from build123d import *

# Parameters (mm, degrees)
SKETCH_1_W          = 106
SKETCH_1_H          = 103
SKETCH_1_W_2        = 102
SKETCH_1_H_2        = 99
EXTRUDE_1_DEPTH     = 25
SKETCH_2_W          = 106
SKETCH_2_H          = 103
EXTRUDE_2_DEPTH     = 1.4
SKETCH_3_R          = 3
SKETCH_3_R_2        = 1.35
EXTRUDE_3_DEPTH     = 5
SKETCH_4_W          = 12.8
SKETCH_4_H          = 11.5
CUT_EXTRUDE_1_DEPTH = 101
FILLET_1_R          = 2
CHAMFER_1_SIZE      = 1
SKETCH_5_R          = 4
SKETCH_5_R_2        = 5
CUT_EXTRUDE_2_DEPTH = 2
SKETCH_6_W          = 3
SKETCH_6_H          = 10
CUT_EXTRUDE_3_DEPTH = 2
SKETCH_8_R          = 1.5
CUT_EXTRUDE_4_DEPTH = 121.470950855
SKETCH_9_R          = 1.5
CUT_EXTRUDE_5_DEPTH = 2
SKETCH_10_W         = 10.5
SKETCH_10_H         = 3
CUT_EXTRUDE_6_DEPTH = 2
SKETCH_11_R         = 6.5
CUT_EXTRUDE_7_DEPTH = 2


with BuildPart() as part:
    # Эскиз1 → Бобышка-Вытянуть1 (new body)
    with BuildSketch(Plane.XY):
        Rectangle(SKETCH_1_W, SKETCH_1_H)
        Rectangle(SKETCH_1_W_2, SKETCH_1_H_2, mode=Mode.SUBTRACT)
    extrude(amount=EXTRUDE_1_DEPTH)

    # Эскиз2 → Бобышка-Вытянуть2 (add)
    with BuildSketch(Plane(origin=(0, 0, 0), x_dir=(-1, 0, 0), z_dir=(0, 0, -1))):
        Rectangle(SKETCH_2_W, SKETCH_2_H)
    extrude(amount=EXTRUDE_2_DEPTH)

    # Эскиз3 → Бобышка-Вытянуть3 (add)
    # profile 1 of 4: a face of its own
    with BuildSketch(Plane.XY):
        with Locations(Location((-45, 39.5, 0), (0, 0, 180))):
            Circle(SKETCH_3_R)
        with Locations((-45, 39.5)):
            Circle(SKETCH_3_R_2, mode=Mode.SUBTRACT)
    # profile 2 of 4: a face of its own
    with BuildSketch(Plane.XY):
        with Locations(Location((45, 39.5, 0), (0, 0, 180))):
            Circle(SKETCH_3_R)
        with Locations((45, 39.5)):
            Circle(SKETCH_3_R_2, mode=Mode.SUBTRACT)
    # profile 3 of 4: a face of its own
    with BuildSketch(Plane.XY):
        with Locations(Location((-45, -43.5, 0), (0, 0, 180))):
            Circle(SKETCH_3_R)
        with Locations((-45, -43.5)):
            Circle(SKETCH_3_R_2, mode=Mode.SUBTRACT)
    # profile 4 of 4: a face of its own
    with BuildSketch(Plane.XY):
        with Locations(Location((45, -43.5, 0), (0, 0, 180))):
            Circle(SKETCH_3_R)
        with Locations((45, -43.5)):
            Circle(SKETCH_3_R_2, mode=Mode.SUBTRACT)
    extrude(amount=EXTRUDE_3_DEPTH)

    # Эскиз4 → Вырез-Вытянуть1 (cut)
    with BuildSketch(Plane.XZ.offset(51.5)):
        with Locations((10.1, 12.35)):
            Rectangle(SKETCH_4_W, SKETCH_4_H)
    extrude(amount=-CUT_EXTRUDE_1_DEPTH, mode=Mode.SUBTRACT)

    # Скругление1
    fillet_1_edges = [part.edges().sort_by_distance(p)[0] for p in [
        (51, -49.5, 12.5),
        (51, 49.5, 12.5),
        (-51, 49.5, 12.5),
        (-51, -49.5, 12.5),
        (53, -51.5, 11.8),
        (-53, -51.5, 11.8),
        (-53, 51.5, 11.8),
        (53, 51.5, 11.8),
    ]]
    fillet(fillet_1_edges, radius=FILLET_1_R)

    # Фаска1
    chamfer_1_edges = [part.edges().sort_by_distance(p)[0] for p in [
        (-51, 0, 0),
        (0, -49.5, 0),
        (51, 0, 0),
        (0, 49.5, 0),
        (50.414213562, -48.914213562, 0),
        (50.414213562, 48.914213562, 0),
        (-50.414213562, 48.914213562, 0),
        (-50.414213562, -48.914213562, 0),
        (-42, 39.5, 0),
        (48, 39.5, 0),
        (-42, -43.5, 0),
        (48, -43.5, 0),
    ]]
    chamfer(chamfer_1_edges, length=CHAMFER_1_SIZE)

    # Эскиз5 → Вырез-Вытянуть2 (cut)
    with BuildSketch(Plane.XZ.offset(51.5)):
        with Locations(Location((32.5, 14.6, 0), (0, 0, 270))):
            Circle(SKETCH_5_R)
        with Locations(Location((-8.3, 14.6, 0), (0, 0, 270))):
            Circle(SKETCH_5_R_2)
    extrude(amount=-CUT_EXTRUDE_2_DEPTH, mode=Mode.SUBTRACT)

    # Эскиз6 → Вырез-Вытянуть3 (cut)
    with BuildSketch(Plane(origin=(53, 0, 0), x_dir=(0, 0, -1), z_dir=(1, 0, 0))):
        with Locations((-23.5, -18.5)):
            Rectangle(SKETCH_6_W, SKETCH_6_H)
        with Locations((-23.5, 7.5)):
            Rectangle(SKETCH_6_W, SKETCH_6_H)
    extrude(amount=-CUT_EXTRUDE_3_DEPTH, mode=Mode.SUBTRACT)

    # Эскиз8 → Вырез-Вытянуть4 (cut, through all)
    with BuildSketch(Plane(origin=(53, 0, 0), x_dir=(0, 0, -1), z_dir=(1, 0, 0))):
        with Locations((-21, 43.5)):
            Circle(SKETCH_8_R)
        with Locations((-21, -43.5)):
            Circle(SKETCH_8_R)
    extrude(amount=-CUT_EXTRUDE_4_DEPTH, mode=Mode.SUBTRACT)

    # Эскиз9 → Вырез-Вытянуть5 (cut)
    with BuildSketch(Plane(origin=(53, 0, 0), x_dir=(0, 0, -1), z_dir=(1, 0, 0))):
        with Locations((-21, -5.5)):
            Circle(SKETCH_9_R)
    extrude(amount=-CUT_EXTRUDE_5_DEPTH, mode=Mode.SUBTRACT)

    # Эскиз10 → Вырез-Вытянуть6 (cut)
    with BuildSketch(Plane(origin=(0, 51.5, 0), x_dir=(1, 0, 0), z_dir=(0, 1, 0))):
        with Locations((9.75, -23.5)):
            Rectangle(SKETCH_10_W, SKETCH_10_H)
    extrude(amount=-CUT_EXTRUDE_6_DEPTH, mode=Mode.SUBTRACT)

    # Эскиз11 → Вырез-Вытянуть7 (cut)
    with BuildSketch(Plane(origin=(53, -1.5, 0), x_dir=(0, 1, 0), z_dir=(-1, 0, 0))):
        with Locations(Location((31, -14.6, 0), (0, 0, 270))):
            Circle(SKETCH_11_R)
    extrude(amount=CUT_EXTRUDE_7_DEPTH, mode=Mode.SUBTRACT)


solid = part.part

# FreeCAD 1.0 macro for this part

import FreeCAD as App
import Part
import Sketcher
Q = App.Units.Quantity


def edges_at(feature, points):
    """Names of the edges that pass closest to the given points."""
    edges = feature.Shape.Edges
    near = lambda p: min(range(len(edges)), key=lambda i: edges[i].distToShape(Part.Vertex(*p))[0])
    return sorted({f"Edge{near(p) + 1}" for p in points})


def add_polygon(sketch, points):
    """Adds a closed chain of lines whose ends are joined by coincident constraints."""
    first, n = sketch.GeometryCount, len(points)
    for a, b in zip(points, points[1:] + points[:1]):
        sketch.addGeometry(Part.LineSegment(App.Vector(*a, 0), App.Vector(*b, 0)), False)
    for i in range(n):
        sketch.addConstraint(Sketcher.Constraint("Coincident", first + i, 2, first + (i + 1) % n, 1))

doc = App.newDocument("Part")
body = doc.addObject("PartDesign::Body", "Body")

# Sketch on XY plane
sketch1 = body.newObject("Sketcher::SketchObject", "Sketch")
sketch1.AttachmentSupport = (doc.getObject("XY_Plane"), [""])
sketch1.MapMode = "FlatFace"
add_polygon(sketch1, [(-53, 52), (-53, -52), (53, -52), (53, 52)])  # lines 0-3
add_polygon(sketch1, [(51, -50), (-51, -50), (-51, 50), (51, 50)])  # lines 4-7
sketch1.addConstraint([
    Sketcher.Constraint("Vertical", 0),
    Sketcher.Constraint("Horizontal", 1),
    Sketcher.Constraint("Vertical", 2),
    Sketcher.Constraint("Horizontal", 3),
    Sketcher.Constraint("Horizontal", 4),
    Sketcher.Constraint("Vertical", 5),
    Sketcher.Constraint("Horizontal", 6),
    Sketcher.Constraint("Vertical", 7),
    Sketcher.Constraint("Symmetric", 0, 2, 2, 2, -1, 1),
    Sketcher.Constraint("Symmetric", 4, 2, 6, 2, -1, 1),
    Sketcher.Constraint("DistanceX", 1, 1, 1, 2, Q("106 mm")),
    Sketcher.Constraint("DistanceX", 4, 2, 4, 1, Q("102 mm")),
    Sketcher.Constraint("DistanceY", 0, 2, 0, 1, Q("103 mm")),
    Sketcher.Constraint("DistanceY", 5, 1, 5, 2, Q("99 mm")),
])
pad1 = body.newObject("PartDesign::Pad", "Pad")
pad1.Profile = sketch1
pad1.Length = 25

# Sketch on XY plane
sketch2 = body.newObject("Sketcher::SketchObject", "Sketch001")
sketch2.AttachmentSupport = (doc.getObject("XY_Plane"), [""])
sketch2.MapMode = "FlatFace"
add_polygon(sketch2, [(53, 52), (53, -52), (-53, -52), (-53, 52)])  # lines 0-3
sketch2.addConstraint([
    Sketcher.Constraint("Vertical", 0),
    Sketcher.Constraint("Horizontal", 1),
    Sketcher.Constraint("Vertical", 2),
    Sketcher.Constraint("Horizontal", 3),
    Sketcher.Constraint("Symmetric", 0, 2, 2, 2, -1, 1),
    Sketcher.Constraint("DistanceX", 1, 2, 1, 1, Q("106 mm")),
    Sketcher.Constraint("DistanceY", 0, 2, 0, 1, Q("103 mm")),
])
pad2 = body.newObject("PartDesign::Pad", "Pad001")
pad2.Profile = sketch2
pad2.Length = 1.4
pad2.Reversed = True

# Sketch on XY plane
sketch3 = body.newObject("Sketcher::SketchObject", "Sketch002")
sketch3.AttachmentSupport = (doc.getObject("XY_Plane"), [""])
sketch3.MapMode = "FlatFace"
sketch3.addGeometry([
    Part.Circle(App.Vector(-45, 39.5, 0), App.Vector(0, 0, 1), 3),  # 0
    Part.Circle(App.Vector(-45, 39.5, 0), App.Vector(0, 0, 1), 1.4),  # 1
    Part.Circle(App.Vector(45, 39.5, 0), App.Vector(0, 0, 1), 3),  # 2
    Part.Circle(App.Vector(45, 39.5, 0), App.Vector(0, 0, 1), 1.4),  # 3
    Part.Circle(App.Vector(-45, -43.5, 0), App.Vector(0, 0, 1), 3),  # 4
    Part.Circle(App.Vector(-45, -43.5, 0), App.Vector(0, 0, 1), 1.4),  # 5
    Part.Circle(App.Vector(45, -43.5, 0), App.Vector(0, 0, 1), 3),  # 6
    Part.Circle(App.Vector(45, -43.5, 0), App.Vector(0, 0, 1), 1.4),  # 7
], False)
sketch3.addConstraint([
    Sketcher.Constraint("Coincident", 1, 3, 0, 3),
    Sketcher.Constraint("Coincident", 3, 3, 2, 3),
    Sketcher.Constraint("Coincident", 5, 3, 4, 3),
    Sketcher.Constraint("Coincident", 7, 3, 6, 3),
    Sketcher.Constraint("Equal", 0, 2),
    Sketcher.Constraint("Equal", 1, 3),
    Sketcher.Constraint("Equal", 2, 4),
    Sketcher.Constraint("Equal", 3, 5),
    Sketcher.Constraint("Equal", 4, 6),
    Sketcher.Constraint("Equal", 5, 7),
    Sketcher.Constraint("Symmetric", 0, 3, 2, 3, -2),
    Sketcher.Constraint("Symmetric", 4, 3, 6, 3, -2),
    Sketcher.Constraint("Vertical", 1, 3, 4, 3),
    Sketcher.Constraint("Diameter", 0, Q("6 mm")),
    Sketcher.Constraint("Diameter", 1, Q("2.7 mm")),
    Sketcher.Constraint("DistanceX", 0, 3, -1, 1, Q("45 mm")),
    Sketcher.Constraint("DistanceY", 4, 3, 0, 3, Q("83 mm")),
    Sketcher.Constraint("DistanceY", -1, 1, 0, 3, Q("39.5 mm")),
])
pad3 = body.newObject("PartDesign::Pad", "Pad002")
pad3.Profile = sketch3
pad3.Length = 5

# Sketch on XZ plane
sketch4 = body.newObject("Sketcher::SketchObject", "Sketch003")
sketch4.AttachmentSupport = (doc.getObject("XZ_Plane"), [""])
sketch4.MapMode = "FlatFace"
sketch4.AttachmentOffset = App.Placement(App.Vector(0, 0, 51.5), App.Rotation())
add_polygon(sketch4, [(4, 18), (4, 7), (16, 7), (16, 18)])  # lines 0-3
sketch4.addConstraint([
    Sketcher.Constraint("Vertical", 0),
    Sketcher.Constraint("Horizontal", 1),
    Sketcher.Constraint("Vertical", 2),
    Sketcher.Constraint("Horizontal", 3),
    Sketcher.Constraint("DistanceX", 1, 1, 1, 2, Q("12.8 mm")),
    Sketcher.Constraint("DistanceY", 0, 2, 0, 1, Q("11.5 mm")),
    Sketcher.Constraint("DistanceX", -1, 1, 0, 2, Q("3.7 mm")),
    Sketcher.Constraint("DistanceY", -1, 1, 0, 2, Q("6.6 mm")),
])
pocket1 = body.newObject("PartDesign::Pocket", "Pocket")
pocket1.Profile = sketch4
pocket1.Length = 101
doc.recompute()

fillet = body.newObject("PartDesign::Fillet", "Fillet")
fillet.Base = (pocket1, edges_at(pocket1, [
    (51, -49.5, 12.5),
    (51, 49.5, 12.5),
    (-51, 49.5, 12.5),
    (-51, -49.5, 12.5),
    (53, -51.5, 11.8),
    (-53, -51.5, 11.8),
    (-53, 51.5, 11.8),
    (53, 51.5, 11.8),
]))
fillet.Radius = 2
doc.recompute()

chamfer = body.newObject("PartDesign::Chamfer", "Chamfer")
chamfer.Base = (fillet, edges_at(fillet, [
    (-51, 0, 0),
    (0, -49.5, 0),
    (51, 0, 0),
    (0, 49.5, 0),
    (50.414, -48.914, 0),
    (50.414, 48.914, 0),
    (-50.414, 48.914, 0),
    (-50.414, -48.914, 0),
    (-42, 39.5, 0),
    (48, 39.5, 0),
    (-42, -43.5, 0),
    (48, -43.5, 0),
]))
chamfer.Size = 1

# Sketch on XZ plane
sketch5 = body.newObject("Sketcher::SketchObject", "Sketch004")
sketch5.AttachmentSupport = (doc.getObject("XZ_Plane"), [""])
sketch5.MapMode = "FlatFace"
sketch5.AttachmentOffset = App.Placement(App.Vector(0, 0, 51.5), App.Rotation())
sketch5.addGeometry([
    Part.Circle(App.Vector(32.5, 14.6, 0), App.Vector(0, 0, 1), 4),
    Part.Circle(App.Vector(-8.3, 14.6, 0), App.Vector(0, 0, 1), 5),
], False)
sketch5.addConstraint([
    Sketcher.Constraint("Horizontal", 0, 3, 1, 3),
    Sketcher.Constraint("Diameter", 0, Q("8 mm")),
    Sketcher.Constraint("Diameter", 1, Q("10 mm")),
    Sketcher.Constraint("DistanceX", -1, 1, 0, 3, Q("32.5 mm")),
    Sketcher.Constraint("DistanceY", -1, 1, 0, 3, Q("14.6 mm")),
    Sketcher.Constraint("DistanceX", 1, 3, -1, 1, Q("8.3 mm")),
])
pocket2 = body.newObject("PartDesign::Pocket", "Pocket001")
pocket2.Profile = sketch5
pocket2.Length = 2

# Sketch on YZ plane
sketch6 = body.newObject("Sketcher::SketchObject", "Sketch005")
sketch6.AttachmentSupport = (doc.getObject("YZ_Plane"), [""])
sketch6.MapMode = "FlatFace"
sketch6.AttachmentOffset = App.Placement(App.Vector(0, 0, 53), App.Rotation())
add_polygon(sketch6, [(-13.5, 25), (-23.5, 25), (-23.5, 22), (-13.5, 22)])  # lines 0-3
add_polygon(sketch6, [(12.5, 25), (2.5, 25), (2.5, 22), (12.5, 22)])  # lines 4-7
sketch6.addConstraint([
    Sketcher.Constraint("Horizontal", 0),
    Sketcher.Constraint("Vertical", 1),
    Sketcher.Constraint("Horizontal", 2),
    Sketcher.Constraint("Vertical", 3),
    Sketcher.Constraint("Horizontal", 4),
    Sketcher.Constraint("Vertical", 5),
    Sketcher.Constraint("Horizontal", 6),
    Sketcher.Constraint("Vertical", 7),
    Sketcher.Constraint("Horizontal", 3, 2, 4, 2),
    Sketcher.Constraint("Horizontal", 2, 2, 5, 2),
    Sketcher.Constraint("Equal", 2, 4),
    Sketcher.Constraint("DistanceX", 0, 2, 0, 1, Q("10 mm")),
    Sketcher.Constraint("DistanceY", 1, 2, 1, 1, Q("3 mm")),
    Sketcher.Constraint("DistanceY", -1, 1, 0, 2, Q("25 mm")),
    Sketcher.Constraint("DistanceX", 3, 2, 4, 2, Q("16 mm")),
    Sketcher.Constraint("DistanceX", 0, 2, -1, 1, Q("23.5 mm")),
])
pocket3 = body.newObject("PartDesign::Pocket", "Pocket002")
pocket3.Profile = sketch6
pocket3.Length = 2

# Sketch on YZ plane
sketch7 = body.newObject("Sketcher::SketchObject", "Sketch006")
sketch7.AttachmentSupport = (doc.getObject("YZ_Plane"), [""])
sketch7.MapMode = "FlatFace"
sketch7.AttachmentOffset = App.Placement(App.Vector(0, 0, 53), App.Rotation())
sketch7.addGeometry([
    Part.Circle(App.Vector(43.5, 21, 0), App.Vector(0, 0, 1), 1.5),
    Part.Circle(App.Vector(-43.5, 21, 0), App.Vector(0, 0, 1), 1.5),
], False)
sketch7.addConstraint([
    Sketcher.Constraint("Equal", 0, 1),
    Sketcher.Constraint("Symmetric", 0, 3, 1, 3, -2),
    Sketcher.Constraint("Diameter", 0, Q("3 mm")),
    Sketcher.Constraint("DistanceY", -1, 1, 0, 3, Q("21 mm")),
    Sketcher.Constraint("DistanceX", 1, 3, 0, 3, Q("87 mm")),
])
pocket4 = body.newObject("PartDesign::Pocket", "Pocket003")
pocket4.Profile = sketch7
pocket4.Type = "ThroughAll"

# Sketch on YZ plane
sketch8 = body.newObject("Sketcher::SketchObject", "Sketch007")
sketch8.AttachmentSupport = (doc.getObject("YZ_Plane"), [""])
sketch8.MapMode = "FlatFace"
sketch8.AttachmentOffset = App.Placement(App.Vector(0, 0, 53), App.Rotation())
sketch8.addGeometry(Part.Circle(App.Vector(-5.5, 21, 0), App.Vector(0, 0, 1), 1.5), False)
sketch8.addConstraint([
    Sketcher.Constraint("Diameter", 0, Q("3 mm")),
    Sketcher.Constraint("DistanceY", -1, 1, 0, 3, Q("21 mm")),
    Sketcher.Constraint("DistanceX", 0, 3, -1, 1, Q("5.5 mm")),
])
pocket5 = body.newObject("PartDesign::Pocket", "Pocket004")
pocket5.Profile = sketch8
pocket5.Length = 2

# Sketch on XZ plane
sketch9 = body.newObject("Sketcher::SketchObject", "Sketch008")
sketch9.AttachmentSupport = (doc.getObject("XZ_Plane"), [""])
sketch9.MapMode = "FlatFace"
sketch9.AttachmentOffset = App.Placement(App.Vector(0, 0, -51.5), App.Rotation())
add_polygon(sketch9, [(4.5, 22), (4.5, 25), (15, 25), (15, 22)])  # lines 0-3
sketch9.addConstraint([
    Sketcher.Constraint("Vertical", 0),
    Sketcher.Constraint("Horizontal", 1),
    Sketcher.Constraint("Vertical", 2),
    Sketcher.Constraint("Horizontal", 3),
    Sketcher.Constraint("DistanceY", 0, 1, 0, 2, Q("3 mm")),
    Sketcher.Constraint("DistanceX", 1, 1, 1, 2, Q("10.5 mm")),
    Sketcher.Constraint("DistanceY", -1, 1, 0, 2, Q("25 mm")),
    Sketcher.Constraint("DistanceX", -1, 1, 1, 2, Q("15 mm")),
])
pocket6 = body.newObject("PartDesign::Pocket", "Pocket005")
pocket6.Profile = sketch9
pocket6.Length = 2
pocket6.Reversed = True

# Sketch on YZ plane
sketch10 = body.newObject("Sketcher::SketchObject", "Sketch009")
sketch10.AttachmentSupport = (doc.getObject("YZ_Plane"), [""])
sketch10.MapMode = "FlatFace"
sketch10.AttachmentOffset = App.Placement(App.Vector(0, 0, 53), App.Rotation())
sketch10.addGeometry(Part.Circle(App.Vector(30, 15, 0), App.Vector(0, 0, 1), 6), False)
sketch10.addConstraint([
    Sketcher.Constraint("Diameter", 0, Q("13 mm")),
    Sketcher.Constraint("DistanceX", -1, 1, 0, 3, Q("29.5 mm")),
    Sketcher.Constraint("DistanceY", -1, 1, 0, 3, Q("14.6 mm")),
])
pocket7 = body.newObject("PartDesign::Pocket", "Pocket006")
pocket7.Profile = sketch10
pocket7.Length = 2

doc.recompute()
